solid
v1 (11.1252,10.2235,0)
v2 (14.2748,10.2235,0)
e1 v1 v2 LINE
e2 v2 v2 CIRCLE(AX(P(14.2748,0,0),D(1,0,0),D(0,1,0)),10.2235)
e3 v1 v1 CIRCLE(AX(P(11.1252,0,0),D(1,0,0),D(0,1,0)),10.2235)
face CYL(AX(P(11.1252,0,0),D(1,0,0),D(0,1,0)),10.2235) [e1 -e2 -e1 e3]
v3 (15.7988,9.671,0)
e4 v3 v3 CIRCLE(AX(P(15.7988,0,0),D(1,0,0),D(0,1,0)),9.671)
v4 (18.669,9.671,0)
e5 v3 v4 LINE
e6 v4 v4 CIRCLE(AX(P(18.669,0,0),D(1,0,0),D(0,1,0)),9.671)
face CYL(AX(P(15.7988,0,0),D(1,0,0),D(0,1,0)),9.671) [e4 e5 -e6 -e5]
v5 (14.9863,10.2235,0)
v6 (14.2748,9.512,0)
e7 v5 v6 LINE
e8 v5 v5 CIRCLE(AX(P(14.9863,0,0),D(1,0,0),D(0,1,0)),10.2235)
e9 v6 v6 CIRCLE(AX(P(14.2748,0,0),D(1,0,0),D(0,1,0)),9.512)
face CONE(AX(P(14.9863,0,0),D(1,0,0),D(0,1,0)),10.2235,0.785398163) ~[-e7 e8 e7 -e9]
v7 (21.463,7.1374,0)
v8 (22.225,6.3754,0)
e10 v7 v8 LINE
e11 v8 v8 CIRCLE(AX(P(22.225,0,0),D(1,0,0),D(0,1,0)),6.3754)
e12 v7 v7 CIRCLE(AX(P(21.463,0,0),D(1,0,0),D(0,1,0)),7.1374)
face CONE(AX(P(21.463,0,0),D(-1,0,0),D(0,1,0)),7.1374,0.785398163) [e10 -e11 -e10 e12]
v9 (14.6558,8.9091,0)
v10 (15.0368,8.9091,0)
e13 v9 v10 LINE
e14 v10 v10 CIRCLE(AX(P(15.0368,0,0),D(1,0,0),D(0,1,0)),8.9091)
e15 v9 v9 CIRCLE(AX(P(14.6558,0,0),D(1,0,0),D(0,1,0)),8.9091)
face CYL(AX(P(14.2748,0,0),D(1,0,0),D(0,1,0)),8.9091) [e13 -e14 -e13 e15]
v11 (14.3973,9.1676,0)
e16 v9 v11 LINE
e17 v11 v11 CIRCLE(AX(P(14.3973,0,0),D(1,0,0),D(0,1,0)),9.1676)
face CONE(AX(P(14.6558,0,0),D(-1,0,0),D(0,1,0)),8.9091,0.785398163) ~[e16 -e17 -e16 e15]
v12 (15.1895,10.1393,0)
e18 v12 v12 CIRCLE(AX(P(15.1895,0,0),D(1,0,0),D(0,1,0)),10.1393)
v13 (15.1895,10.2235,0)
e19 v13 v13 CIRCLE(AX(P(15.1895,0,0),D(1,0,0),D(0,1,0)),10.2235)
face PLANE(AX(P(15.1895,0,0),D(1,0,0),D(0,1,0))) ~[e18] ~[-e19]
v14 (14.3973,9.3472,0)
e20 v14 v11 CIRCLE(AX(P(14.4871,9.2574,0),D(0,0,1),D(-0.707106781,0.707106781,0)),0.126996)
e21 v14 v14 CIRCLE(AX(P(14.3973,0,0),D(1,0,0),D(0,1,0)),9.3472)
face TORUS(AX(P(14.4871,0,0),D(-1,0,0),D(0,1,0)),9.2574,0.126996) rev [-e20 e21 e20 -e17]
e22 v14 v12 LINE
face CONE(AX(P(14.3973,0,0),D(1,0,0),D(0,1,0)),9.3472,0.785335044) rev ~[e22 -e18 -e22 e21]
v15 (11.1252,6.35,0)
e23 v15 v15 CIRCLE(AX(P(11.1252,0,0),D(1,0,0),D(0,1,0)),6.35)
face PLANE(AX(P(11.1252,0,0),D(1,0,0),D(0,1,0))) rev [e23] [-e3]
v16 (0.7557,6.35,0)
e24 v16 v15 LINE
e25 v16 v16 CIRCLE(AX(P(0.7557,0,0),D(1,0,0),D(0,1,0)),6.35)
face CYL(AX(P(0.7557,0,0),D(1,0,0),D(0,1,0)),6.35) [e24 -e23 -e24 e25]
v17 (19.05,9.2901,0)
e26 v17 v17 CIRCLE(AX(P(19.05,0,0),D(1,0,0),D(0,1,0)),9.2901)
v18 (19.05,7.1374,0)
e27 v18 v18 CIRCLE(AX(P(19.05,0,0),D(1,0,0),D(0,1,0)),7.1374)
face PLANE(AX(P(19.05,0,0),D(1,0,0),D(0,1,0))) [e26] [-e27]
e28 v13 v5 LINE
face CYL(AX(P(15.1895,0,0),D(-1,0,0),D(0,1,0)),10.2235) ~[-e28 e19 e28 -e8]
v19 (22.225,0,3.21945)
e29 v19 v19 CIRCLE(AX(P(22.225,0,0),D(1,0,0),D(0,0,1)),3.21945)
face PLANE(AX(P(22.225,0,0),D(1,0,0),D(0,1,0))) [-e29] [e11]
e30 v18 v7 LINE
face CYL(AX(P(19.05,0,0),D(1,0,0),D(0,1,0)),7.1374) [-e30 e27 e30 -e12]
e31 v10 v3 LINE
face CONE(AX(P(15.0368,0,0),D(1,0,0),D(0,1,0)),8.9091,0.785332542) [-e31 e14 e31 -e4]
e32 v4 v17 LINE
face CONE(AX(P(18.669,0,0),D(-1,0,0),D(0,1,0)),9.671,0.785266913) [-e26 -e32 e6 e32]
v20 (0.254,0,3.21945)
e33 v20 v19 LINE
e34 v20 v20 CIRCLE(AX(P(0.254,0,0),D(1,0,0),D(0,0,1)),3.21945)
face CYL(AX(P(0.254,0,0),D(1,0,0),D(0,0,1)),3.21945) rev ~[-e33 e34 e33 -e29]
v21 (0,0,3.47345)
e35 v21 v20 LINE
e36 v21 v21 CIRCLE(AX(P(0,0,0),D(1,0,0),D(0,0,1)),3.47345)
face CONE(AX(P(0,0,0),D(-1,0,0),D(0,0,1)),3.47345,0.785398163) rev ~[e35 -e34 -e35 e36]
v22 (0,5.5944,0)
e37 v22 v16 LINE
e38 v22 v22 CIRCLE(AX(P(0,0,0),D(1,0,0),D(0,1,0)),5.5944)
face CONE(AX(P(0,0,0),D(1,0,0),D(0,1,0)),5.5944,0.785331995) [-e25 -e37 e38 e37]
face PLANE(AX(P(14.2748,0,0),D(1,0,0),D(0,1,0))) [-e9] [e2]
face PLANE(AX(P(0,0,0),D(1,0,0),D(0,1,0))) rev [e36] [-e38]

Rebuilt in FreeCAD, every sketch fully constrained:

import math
import FreeCAD as App
import Part
import Sketcher
from FreeCAD import Vector
Q = App.Units.Quantity

doc = App.newDocument("Part")
body = doc.addObject("PartDesign::Body", "Body")

# Sketch on XY plane
sketch1 = body.newObject("Sketcher::SketchObject", "Sketch")
sketch1.AttachmentSupport = (doc.getObject("XY_Plane"), [""])
sketch1.MapMode = "FlatFace"
sketch1.addGeometry([
    Part.LineSegment(Vector(0, 0, 0), Vector(11.1, 0, 0)),  # 0
    Part.LineSegment(Vector(11.1, 0, 0), Vector(11.1, 6.3, 0)),  # 1
    Part.LineSegment(Vector(11.1, 6.3, 0), Vector(0.8, 6.3, 0)),  # 2
    Part.LineSegment(Vector(0.8, 6.3, 0), Vector(0, 5.6, 0)),  # 3
    Part.LineSegment(Vector(0, 5.6, 0), Vector(0, 0, 0)),  # 4
], False)
sketch1.addConstraint([
    Sketcher.Constraint("Coincident", 0, 2, 1, 1),
    Sketcher.Constraint("Coincident", 1, 2, 2, 1),
    Sketcher.Constraint("Coincident", 2, 2, 3, 1),
    Sketcher.Constraint("Coincident", 3, 2, 4, 1),
    Sketcher.Constraint("Coincident", 4, 2, 0, 1),
    Sketcher.Constraint("Horizontal", 0),
    Sketcher.Constraint("Vertical", 1),
    Sketcher.Constraint("Horizontal", 2),
    Sketcher.Constraint("Vertical", 4),
    Sketcher.Constraint("Coincident", 4, 2, -1, 1),
    Sketcher.Constraint("DistanceY", 1, 1, 1, 2, Q("0.25 in")),
    Sketcher.Constraint("DistanceX", 0, 1, 0, 2, Q("0.438 in")),
    Sketcher.Constraint("DistanceX", 2, 2, 2, 1, 10.3695),
    Sketcher.Constraint("DistanceY", 4, 2, 4, 1, 5.5944),
])
revolution = body.newObject("PartDesign::Revolution", "Revolution")
revolution.Profile = sketch1
revolution.ReferenceAxis = (sketch1, ["H_Axis"])
revolution.Angle = 360

# Sketch on XY plane
sketch2 = body.newObject("Sketcher::SketchObject", "Sketch001")
sketch2.AttachmentSupport = (doc.getObject("XY_Plane"), [""])
sketch2.MapMode = "FlatFace"
sketch2.addGeometry([
    Part.LineSegment(Vector(11.1, 0, 0), Vector(19.1, 0, 0)),  # 0
    Part.LineSegment(Vector(19.1, 0, 0), Vector(19.1, 9.3, 0)),  # 1
    Part.LineSegment(Vector(19.1, 9.3, 0), Vector(18.7, 9.7, 0)),  # 2
    Part.LineSegment(Vector(18.7, 9.7, 0), Vector(15.8, 9.7, 0)),  # 3
    Part.LineSegment(Vector(15.8, 9.7, 0), Vector(15, 8.9, 0)),  # 4
    Part.LineSegment(Vector(15, 8.9, 0), Vector(14.3, 8.9, 0)),  # 5
    Part.LineSegment(Vector(14.3, 8.9, 0), Vector(14.3, 10.2, 0)),  # 6
    Part.LineSegment(Vector(14.3, 10.2, 0), Vector(11.1, 10.2, 0)),  # 7
    Part.LineSegment(Vector(11.1, 10.2, 0), Vector(11.1, 0, 0)),  # 8
], False)
sketch2.addConstraint([
    Sketcher.Constraint("Coincident", 0, 2, 1, 1),
    Sketcher.Constraint("Coincident", 1, 2, 2, 1),
    Sketcher.Constraint("Coincident", 2, 2, 3, 1),
    Sketcher.Constraint("Coincident", 3, 2, 4, 1),
    Sketcher.Constraint("Coincident", 4, 2, 5, 1),
    Sketcher.Constraint("Coincident", 5, 2, 6, 1),
    Sketcher.Constraint("Coincident", 6, 2, 7, 1),
    Sketcher.Constraint("Coincident", 7, 2, 8, 1),
    Sketcher.Constraint("Coincident", 8, 2, 0, 1),
    Sketcher.Constraint("Horizontal", 0),
    Sketcher.Constraint("Vertical", 1),
    Sketcher.Constraint("Horizontal", 3),
    Sketcher.Constraint("Horizontal", 5),
    Sketcher.Constraint("Vertical", 6),
    Sketcher.Constraint("Horizontal", 7),
    Sketcher.Constraint("Vertical", 8),
    Sketcher.Constraint("PointOnObject", 0, 2, -1),
    Sketcher.Constraint("Perpendicular", 2, 4),
    Sketcher.Constraint("DistanceX", 5, 2, 5, 1, Q("0.03 in")),
    Sketcher.Constraint("DistanceX", 0, 1, 0, 2, Q("0.312 in")),
    Sketcher.Constraint("DistanceX", 3, 2, 3, 1, Q("0.113 in")),
    Sketcher.Constraint("DistanceX", 7, 2, 7, 1, Q("0.124 in")),
    Sketcher.Constraint("DistanceX", -1, 1, 0, 2, Q("0.75 in")),
    Sketcher.Constraint("DistanceX", 4, 2, 3, 2, Q("0.03 in")),
    Sketcher.Constraint("DistanceY", 4, 2, 3, 2, Q("0.03 in")),
    Sketcher.Constraint("DistanceY", 8, 2, 8, 1, Q("0.4025 in")),
    Sketcher.Constraint("DistanceY", 1, 1, 1, 2, 9.29),
])
revolution2 = body.newObject("PartDesign::Revolution", "Revolution001")
revolution2.Profile = sketch2
revolution2.ReferenceAxis = (sketch2, ["H_Axis"])
revolution2.Angle = 360

# Sketch on XY plane
sketch3 = body.newObject("Sketcher::SketchObject", "Sketch002")
sketch3.AttachmentSupport = (doc.getObject("XY_Plane"), [""])
sketch3.MapMode = "FlatFace"
sketch3.addGeometry([
    Part.LineSegment(Vector(19.1, 0, 0), Vector(22.2, 0, 0)),  # 0
    Part.LineSegment(Vector(22.2, 0, 0), Vector(22.2, 6.4, 0)),  # 1
    Part.LineSegment(Vector(22.2, 6.4, 0), Vector(21.5, 7.1, 0)),  # 2
    Part.LineSegment(Vector(21.5, 7.1, 0), Vector(19.1, 7.1, 0)),  # 3
    Part.LineSegment(Vector(19.1, 7.1, 0), Vector(19.1, 0, 0)),  # 4
], False)
sketch3.addConstraint([
    Sketcher.Constraint("Coincident", 0, 2, 1, 1),
    Sketcher.Constraint("Coincident", 1, 2, 2, 1),
    Sketcher.Constraint("Coincident", 2, 2, 3, 1),
    Sketcher.Constraint("Coincident", 3, 2, 4, 1),
    Sketcher.Constraint("Coincident", 4, 2, 0, 1),
    Sketcher.Constraint("Horizontal", 0),
    Sketcher.Constraint("Vertical", 1),
    Sketcher.Constraint("Horizontal", 3),
    Sketcher.Constraint("Vertical", 4),
    Sketcher.Constraint("PointOnObject", 0, 2, -1),
    Sketcher.Constraint("Angle", 2, Q("135 deg")),
    Sketcher.Constraint("DistanceX", 0, 1, 0, 2, Q("0.125 in")),
    Sketcher.Constraint("DistanceX", 3, 2, 3, 1, Q("0.095 in")),
    Sketcher.Constraint("DistanceY", 1, 1, 1, 2, Q("0.251 in")),
    Sketcher.Constraint("DistanceX", -1, 1, 3, 2, Q("0.75 in")),
])
revolution3 = body.newObject("PartDesign::Revolution", "Revolution002")
revolution3.Profile = sketch3
revolution3.ReferenceAxis = (sketch3, ["H_Axis"])
revolution3.Angle = 360

# Sketch on YZ plane
sketch4 = body.newObject("Sketcher::SketchObject", "Sketch003")
sketch4.AttachmentSupport = (doc.getObject("YZ_Plane"), [""])
sketch4.MapMode = "FlatFace"
sketch4.addGeometry(Part.Circle(Vector(0, 0, 0), Vector(0, 0, 1), 3.2), False)
sketch4.addConstraint([
    Sketcher.Constraint("Coincident", 0, 3, -1, 1),
    Sketcher.Constraint("Diameter", 0, Q("0.2535 in")),
])
doc.recompute()
hole = body.newObject("PartDesign::Hole", "Hole")
hole.Profile = sketch4
hole.ThreadType = "None"
hole.Diameter = Q("0.2535 in")
hole.DepthType = "Dimension"
hole.Depth = Q("0.875 in")
hole.DrillPoint = "Flat"
hole.HoleCutType = "Countersink"
hole.HoleCutDiameter = Q("0.2735 in")
hole.HoleCutCountersinkAngle = 90
hole.Reversed = True

# Sketch on XY plane
sketch5 = body.newObject("Sketcher::SketchObject", "Sketch004")
sketch5.AttachmentSupport = (doc.getObject("XY_Plane"), [""])
sketch5.MapMode = "FlatFace"
sketch5.addGeometry([
    Part.LineSegment(Vector(14.99, 10.22, 0), Vector(14.27, 9.51, 0)),  # 0
    Part.LineSegment(Vector(14.27, 9.51, 0), Vector(14.27, 8.65, 0)),  # 1
    Part.LineSegment(Vector(14.27, 8.65, 0), Vector(15.04, 8.65, 0)),  # 2
    Part.LineSegment(Vector(15.04, 8.65, 0), Vector(15.04, 8.91, 0)),  # 3
    Part.LineSegment(Vector(15.04, 8.91, 0), Vector(14.66, 8.91, 0)),  # 4
    Part.LineSegment(Vector(14.66, 8.91, 0), Vector(14.4, 9.17, 0)),  # 5
    Part.ArcOfCircle(Part.Circle(Vector(14.49, 9.26, 0), Vector(0, 0, 1), 0.13), math.radians(135), math.radians(225)),  # 6
    Part.LineSegment(Vector(14.4, 9.35, 0), Vector(15.19, 10.14, 0)),  # 7
    Part.LineSegment(Vector(15.19, 10.14, 0), Vector(15.19, 10.22, 0)),  # 8
    Part.LineSegment(Vector(15.19, 10.22, 0), Vector(14.99, 10.22, 0)),  # 9
], False)
sketch5.addConstraint([
    Sketcher.Constraint("Coincident", 0, 2, 1, 1),
    Sketcher.Constraint("Coincident", 1, 2, 2, 1),
    Sketcher.Constraint("Coincident", 2, 2, 3, 1),
    Sketcher.Constraint("Coincident", 3, 2, 4, 1),
    Sketcher.Constraint("Coincident", 4, 2, 5, 1),
    Sketcher.Constraint("Tangent", 5, 2, 6, 2),
    Sketcher.Constraint("Tangent", 6, 1, 7, 1),
    Sketcher.Constraint("Coincident", 7, 2, 8, 1),
    Sketcher.Constraint("Coincident", 8, 2, 9, 1),
    Sketcher.Constraint("Coincident", 9, 2, 0, 1),
    Sketcher.Constraint("Vertical", 1),
    Sketcher.Constraint("Horizontal", 2),
    Sketcher.Constraint("Vertical", 3),
    Sketcher.Constraint("Horizontal", 4),
    Sketcher.Constraint("Vertical", 8),
    Sketcher.Constraint("Horizontal", 9),
    Sketcher.Constraint("Perpendicular", 0, 5),
    Sketcher.Constraint("Perpendicular", 5, 7),
    Sketcher.Constraint("Vertical", 5, 2, 6, 1),
    Sketcher.Constraint("Radius", 6, Q("0.005 in")),
    Sketcher.Constraint("DistanceX", 2, 1, 2, 2, Q("0.03 in")),
    Sketcher.Constraint("DistanceY", 3, 1, 3, 2, Q("0.01 in")),
    Sketcher.Constraint("DistanceX", 4, 2, 4, 1, Q("0.015 in")),
    Sketcher.Constraint("DistanceX", 9, 2, 9, 1, Q("0.008 in")),
    Sketcher.Constraint("DistanceX", -1, 1, 9, 2, Q("0.59 in")),
    Sketcher.Constraint("DistanceX", -1, 1, 0, 2, Q("0.562 in")),
    Sketcher.Constraint("DistanceY", -1, 1, 6, 1, Q("0.368 in")),
    Sketcher.Constraint("Distance", 5, Q("0.0144 in")),
    Sketcher.Constraint("DistanceY", 1, 2, 1, 1, 0.857),
])
revolution4 = body.newObject("PartDesign::Revolution", "Revolution003")
revolution4.Profile = sketch5
revolution4.ReferenceAxis = (sketch5, ["H_Axis"])
revolution4.Angle = 360

doc.recompute()
